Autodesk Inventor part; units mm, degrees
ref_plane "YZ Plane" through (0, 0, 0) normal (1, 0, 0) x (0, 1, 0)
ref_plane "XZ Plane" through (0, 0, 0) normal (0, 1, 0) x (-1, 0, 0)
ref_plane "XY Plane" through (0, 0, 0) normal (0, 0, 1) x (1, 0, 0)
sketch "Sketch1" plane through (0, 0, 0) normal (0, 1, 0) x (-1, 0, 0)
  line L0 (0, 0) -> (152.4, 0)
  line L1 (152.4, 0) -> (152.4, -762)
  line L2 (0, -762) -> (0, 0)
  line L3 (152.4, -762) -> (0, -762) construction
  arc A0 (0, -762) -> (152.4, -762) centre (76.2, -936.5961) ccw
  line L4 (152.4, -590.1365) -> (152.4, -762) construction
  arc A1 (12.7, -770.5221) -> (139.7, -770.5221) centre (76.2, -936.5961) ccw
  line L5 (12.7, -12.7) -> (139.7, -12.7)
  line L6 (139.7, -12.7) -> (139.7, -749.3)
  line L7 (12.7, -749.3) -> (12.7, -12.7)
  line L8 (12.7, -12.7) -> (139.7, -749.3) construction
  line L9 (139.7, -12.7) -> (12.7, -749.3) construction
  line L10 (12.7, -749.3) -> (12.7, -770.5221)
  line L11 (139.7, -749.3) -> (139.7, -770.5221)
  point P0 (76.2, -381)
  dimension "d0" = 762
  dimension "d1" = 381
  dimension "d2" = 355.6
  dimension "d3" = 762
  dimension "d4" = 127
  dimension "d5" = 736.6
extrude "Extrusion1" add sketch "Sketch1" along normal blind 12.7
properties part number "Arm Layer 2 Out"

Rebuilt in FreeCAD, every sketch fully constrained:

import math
import FreeCAD as App
import Part
import Sketcher
Q = App.Units.Quantity

doc = App.newDocument("Part")
body = doc.addObject("PartDesign::Body", "Body")

# Sketch on XZ plane
sketch1 = body.newObject("Sketcher::SketchObject", "Sketch")
sketch1.AttachmentSupport = (doc.getObject("XZ_Plane"), [""])
sketch1.MapMode = "FlatFace"
sketch1.addGeometry([
    Part.LineSegment(App.Vector(-152, 0, 0), App.Vector(0, 0, 0)),  # 0
    Part.LineSegment(App.Vector(0, 0, 0), App.Vector(0, -762, 0)),  # 1
    Part.ArcOfCircle(Part.Circle(App.Vector(-76, -937, 0), App.Vector(0, 0, 1), 190), math.radians(114), math.radians(426)),  # 2
    Part.LineSegment(App.Vector(-152, -762, 0), App.Vector(-152, 0, 0)),  # 3
    Part.ArcOfCircle(Part.Circle(App.Vector(-76, -937, 0), App.Vector(0, 0, 1), 178), math.radians(111), math.radians(429)),  # 4
    Part.LineSegment(App.Vector(-13, -771, 0), App.Vector(-13, -13, 0)),  # 5
    Part.LineSegment(App.Vector(-13, -13, 0), App.Vector(-140, -13, 0)),  # 6
    Part.LineSegment(App.Vector(-140, -13, 0), App.Vector(-140, -771, 0)),  # 7
], False)
sketch1.addConstraint([
    Sketcher.Constraint("Coincident", 0, 2, 1, 1),
    Sketcher.Constraint("Coincident", 1, 2, 2, 2),
    Sketcher.Constraint("Coincident", 2, 1, 3, 1),
    Sketcher.Constraint("Coincident", 3, 2, 0, 1),
    Sketcher.Constraint("Coincident", 4, 2, 5, 1),
    Sketcher.Constraint("Coincident", 5, 2, 6, 1),
    Sketcher.Constraint("Coincident", 6, 2, 7, 1),
    Sketcher.Constraint("Coincident", 7, 2, 4, 1),
    Sketcher.Constraint("Horizontal", 0),
    Sketcher.Constraint("Vertical", 1),
    Sketcher.Constraint("Vertical", 3),
    Sketcher.Constraint("Vertical", 5),
    Sketcher.Constraint("Horizontal", 6),
    Sketcher.Constraint("Vertical", 7),
    Sketcher.Constraint("Coincident", 0, 2, -1, 1),
    Sketcher.Constraint("Coincident", 4, 3, 2, 3),
    Sketcher.Constraint("Horizontal", 1, 2, 2, 1),
    Sketcher.Constraint("Horizontal", 4, 2, 7, 2),
    Sketcher.Constraint("Radius", 4, Q("7 in")),
    Sketcher.Constraint("Radius", 2, Q("7.5 in")),
    Sketcher.Constraint("DistanceX", 6, 2, 6, 1, Q("5 in")),
    Sketcher.Constraint("DistanceY", 1, 2, 1, 1, Q("30 in")),
    Sketcher.Constraint("DistanceX", 0, 1, 0, 2, Q("6 in")),
    Sketcher.Constraint("DistanceY", 5, 2, -1, 1, Q("0.5 in")),
])
pad1 = body.newObject("PartDesign::Pad", "Pad")
pad1.Profile = sketch1
pad1.Length = Q("0.5 in")
pad1.Reversed = True

doc.recompute()
